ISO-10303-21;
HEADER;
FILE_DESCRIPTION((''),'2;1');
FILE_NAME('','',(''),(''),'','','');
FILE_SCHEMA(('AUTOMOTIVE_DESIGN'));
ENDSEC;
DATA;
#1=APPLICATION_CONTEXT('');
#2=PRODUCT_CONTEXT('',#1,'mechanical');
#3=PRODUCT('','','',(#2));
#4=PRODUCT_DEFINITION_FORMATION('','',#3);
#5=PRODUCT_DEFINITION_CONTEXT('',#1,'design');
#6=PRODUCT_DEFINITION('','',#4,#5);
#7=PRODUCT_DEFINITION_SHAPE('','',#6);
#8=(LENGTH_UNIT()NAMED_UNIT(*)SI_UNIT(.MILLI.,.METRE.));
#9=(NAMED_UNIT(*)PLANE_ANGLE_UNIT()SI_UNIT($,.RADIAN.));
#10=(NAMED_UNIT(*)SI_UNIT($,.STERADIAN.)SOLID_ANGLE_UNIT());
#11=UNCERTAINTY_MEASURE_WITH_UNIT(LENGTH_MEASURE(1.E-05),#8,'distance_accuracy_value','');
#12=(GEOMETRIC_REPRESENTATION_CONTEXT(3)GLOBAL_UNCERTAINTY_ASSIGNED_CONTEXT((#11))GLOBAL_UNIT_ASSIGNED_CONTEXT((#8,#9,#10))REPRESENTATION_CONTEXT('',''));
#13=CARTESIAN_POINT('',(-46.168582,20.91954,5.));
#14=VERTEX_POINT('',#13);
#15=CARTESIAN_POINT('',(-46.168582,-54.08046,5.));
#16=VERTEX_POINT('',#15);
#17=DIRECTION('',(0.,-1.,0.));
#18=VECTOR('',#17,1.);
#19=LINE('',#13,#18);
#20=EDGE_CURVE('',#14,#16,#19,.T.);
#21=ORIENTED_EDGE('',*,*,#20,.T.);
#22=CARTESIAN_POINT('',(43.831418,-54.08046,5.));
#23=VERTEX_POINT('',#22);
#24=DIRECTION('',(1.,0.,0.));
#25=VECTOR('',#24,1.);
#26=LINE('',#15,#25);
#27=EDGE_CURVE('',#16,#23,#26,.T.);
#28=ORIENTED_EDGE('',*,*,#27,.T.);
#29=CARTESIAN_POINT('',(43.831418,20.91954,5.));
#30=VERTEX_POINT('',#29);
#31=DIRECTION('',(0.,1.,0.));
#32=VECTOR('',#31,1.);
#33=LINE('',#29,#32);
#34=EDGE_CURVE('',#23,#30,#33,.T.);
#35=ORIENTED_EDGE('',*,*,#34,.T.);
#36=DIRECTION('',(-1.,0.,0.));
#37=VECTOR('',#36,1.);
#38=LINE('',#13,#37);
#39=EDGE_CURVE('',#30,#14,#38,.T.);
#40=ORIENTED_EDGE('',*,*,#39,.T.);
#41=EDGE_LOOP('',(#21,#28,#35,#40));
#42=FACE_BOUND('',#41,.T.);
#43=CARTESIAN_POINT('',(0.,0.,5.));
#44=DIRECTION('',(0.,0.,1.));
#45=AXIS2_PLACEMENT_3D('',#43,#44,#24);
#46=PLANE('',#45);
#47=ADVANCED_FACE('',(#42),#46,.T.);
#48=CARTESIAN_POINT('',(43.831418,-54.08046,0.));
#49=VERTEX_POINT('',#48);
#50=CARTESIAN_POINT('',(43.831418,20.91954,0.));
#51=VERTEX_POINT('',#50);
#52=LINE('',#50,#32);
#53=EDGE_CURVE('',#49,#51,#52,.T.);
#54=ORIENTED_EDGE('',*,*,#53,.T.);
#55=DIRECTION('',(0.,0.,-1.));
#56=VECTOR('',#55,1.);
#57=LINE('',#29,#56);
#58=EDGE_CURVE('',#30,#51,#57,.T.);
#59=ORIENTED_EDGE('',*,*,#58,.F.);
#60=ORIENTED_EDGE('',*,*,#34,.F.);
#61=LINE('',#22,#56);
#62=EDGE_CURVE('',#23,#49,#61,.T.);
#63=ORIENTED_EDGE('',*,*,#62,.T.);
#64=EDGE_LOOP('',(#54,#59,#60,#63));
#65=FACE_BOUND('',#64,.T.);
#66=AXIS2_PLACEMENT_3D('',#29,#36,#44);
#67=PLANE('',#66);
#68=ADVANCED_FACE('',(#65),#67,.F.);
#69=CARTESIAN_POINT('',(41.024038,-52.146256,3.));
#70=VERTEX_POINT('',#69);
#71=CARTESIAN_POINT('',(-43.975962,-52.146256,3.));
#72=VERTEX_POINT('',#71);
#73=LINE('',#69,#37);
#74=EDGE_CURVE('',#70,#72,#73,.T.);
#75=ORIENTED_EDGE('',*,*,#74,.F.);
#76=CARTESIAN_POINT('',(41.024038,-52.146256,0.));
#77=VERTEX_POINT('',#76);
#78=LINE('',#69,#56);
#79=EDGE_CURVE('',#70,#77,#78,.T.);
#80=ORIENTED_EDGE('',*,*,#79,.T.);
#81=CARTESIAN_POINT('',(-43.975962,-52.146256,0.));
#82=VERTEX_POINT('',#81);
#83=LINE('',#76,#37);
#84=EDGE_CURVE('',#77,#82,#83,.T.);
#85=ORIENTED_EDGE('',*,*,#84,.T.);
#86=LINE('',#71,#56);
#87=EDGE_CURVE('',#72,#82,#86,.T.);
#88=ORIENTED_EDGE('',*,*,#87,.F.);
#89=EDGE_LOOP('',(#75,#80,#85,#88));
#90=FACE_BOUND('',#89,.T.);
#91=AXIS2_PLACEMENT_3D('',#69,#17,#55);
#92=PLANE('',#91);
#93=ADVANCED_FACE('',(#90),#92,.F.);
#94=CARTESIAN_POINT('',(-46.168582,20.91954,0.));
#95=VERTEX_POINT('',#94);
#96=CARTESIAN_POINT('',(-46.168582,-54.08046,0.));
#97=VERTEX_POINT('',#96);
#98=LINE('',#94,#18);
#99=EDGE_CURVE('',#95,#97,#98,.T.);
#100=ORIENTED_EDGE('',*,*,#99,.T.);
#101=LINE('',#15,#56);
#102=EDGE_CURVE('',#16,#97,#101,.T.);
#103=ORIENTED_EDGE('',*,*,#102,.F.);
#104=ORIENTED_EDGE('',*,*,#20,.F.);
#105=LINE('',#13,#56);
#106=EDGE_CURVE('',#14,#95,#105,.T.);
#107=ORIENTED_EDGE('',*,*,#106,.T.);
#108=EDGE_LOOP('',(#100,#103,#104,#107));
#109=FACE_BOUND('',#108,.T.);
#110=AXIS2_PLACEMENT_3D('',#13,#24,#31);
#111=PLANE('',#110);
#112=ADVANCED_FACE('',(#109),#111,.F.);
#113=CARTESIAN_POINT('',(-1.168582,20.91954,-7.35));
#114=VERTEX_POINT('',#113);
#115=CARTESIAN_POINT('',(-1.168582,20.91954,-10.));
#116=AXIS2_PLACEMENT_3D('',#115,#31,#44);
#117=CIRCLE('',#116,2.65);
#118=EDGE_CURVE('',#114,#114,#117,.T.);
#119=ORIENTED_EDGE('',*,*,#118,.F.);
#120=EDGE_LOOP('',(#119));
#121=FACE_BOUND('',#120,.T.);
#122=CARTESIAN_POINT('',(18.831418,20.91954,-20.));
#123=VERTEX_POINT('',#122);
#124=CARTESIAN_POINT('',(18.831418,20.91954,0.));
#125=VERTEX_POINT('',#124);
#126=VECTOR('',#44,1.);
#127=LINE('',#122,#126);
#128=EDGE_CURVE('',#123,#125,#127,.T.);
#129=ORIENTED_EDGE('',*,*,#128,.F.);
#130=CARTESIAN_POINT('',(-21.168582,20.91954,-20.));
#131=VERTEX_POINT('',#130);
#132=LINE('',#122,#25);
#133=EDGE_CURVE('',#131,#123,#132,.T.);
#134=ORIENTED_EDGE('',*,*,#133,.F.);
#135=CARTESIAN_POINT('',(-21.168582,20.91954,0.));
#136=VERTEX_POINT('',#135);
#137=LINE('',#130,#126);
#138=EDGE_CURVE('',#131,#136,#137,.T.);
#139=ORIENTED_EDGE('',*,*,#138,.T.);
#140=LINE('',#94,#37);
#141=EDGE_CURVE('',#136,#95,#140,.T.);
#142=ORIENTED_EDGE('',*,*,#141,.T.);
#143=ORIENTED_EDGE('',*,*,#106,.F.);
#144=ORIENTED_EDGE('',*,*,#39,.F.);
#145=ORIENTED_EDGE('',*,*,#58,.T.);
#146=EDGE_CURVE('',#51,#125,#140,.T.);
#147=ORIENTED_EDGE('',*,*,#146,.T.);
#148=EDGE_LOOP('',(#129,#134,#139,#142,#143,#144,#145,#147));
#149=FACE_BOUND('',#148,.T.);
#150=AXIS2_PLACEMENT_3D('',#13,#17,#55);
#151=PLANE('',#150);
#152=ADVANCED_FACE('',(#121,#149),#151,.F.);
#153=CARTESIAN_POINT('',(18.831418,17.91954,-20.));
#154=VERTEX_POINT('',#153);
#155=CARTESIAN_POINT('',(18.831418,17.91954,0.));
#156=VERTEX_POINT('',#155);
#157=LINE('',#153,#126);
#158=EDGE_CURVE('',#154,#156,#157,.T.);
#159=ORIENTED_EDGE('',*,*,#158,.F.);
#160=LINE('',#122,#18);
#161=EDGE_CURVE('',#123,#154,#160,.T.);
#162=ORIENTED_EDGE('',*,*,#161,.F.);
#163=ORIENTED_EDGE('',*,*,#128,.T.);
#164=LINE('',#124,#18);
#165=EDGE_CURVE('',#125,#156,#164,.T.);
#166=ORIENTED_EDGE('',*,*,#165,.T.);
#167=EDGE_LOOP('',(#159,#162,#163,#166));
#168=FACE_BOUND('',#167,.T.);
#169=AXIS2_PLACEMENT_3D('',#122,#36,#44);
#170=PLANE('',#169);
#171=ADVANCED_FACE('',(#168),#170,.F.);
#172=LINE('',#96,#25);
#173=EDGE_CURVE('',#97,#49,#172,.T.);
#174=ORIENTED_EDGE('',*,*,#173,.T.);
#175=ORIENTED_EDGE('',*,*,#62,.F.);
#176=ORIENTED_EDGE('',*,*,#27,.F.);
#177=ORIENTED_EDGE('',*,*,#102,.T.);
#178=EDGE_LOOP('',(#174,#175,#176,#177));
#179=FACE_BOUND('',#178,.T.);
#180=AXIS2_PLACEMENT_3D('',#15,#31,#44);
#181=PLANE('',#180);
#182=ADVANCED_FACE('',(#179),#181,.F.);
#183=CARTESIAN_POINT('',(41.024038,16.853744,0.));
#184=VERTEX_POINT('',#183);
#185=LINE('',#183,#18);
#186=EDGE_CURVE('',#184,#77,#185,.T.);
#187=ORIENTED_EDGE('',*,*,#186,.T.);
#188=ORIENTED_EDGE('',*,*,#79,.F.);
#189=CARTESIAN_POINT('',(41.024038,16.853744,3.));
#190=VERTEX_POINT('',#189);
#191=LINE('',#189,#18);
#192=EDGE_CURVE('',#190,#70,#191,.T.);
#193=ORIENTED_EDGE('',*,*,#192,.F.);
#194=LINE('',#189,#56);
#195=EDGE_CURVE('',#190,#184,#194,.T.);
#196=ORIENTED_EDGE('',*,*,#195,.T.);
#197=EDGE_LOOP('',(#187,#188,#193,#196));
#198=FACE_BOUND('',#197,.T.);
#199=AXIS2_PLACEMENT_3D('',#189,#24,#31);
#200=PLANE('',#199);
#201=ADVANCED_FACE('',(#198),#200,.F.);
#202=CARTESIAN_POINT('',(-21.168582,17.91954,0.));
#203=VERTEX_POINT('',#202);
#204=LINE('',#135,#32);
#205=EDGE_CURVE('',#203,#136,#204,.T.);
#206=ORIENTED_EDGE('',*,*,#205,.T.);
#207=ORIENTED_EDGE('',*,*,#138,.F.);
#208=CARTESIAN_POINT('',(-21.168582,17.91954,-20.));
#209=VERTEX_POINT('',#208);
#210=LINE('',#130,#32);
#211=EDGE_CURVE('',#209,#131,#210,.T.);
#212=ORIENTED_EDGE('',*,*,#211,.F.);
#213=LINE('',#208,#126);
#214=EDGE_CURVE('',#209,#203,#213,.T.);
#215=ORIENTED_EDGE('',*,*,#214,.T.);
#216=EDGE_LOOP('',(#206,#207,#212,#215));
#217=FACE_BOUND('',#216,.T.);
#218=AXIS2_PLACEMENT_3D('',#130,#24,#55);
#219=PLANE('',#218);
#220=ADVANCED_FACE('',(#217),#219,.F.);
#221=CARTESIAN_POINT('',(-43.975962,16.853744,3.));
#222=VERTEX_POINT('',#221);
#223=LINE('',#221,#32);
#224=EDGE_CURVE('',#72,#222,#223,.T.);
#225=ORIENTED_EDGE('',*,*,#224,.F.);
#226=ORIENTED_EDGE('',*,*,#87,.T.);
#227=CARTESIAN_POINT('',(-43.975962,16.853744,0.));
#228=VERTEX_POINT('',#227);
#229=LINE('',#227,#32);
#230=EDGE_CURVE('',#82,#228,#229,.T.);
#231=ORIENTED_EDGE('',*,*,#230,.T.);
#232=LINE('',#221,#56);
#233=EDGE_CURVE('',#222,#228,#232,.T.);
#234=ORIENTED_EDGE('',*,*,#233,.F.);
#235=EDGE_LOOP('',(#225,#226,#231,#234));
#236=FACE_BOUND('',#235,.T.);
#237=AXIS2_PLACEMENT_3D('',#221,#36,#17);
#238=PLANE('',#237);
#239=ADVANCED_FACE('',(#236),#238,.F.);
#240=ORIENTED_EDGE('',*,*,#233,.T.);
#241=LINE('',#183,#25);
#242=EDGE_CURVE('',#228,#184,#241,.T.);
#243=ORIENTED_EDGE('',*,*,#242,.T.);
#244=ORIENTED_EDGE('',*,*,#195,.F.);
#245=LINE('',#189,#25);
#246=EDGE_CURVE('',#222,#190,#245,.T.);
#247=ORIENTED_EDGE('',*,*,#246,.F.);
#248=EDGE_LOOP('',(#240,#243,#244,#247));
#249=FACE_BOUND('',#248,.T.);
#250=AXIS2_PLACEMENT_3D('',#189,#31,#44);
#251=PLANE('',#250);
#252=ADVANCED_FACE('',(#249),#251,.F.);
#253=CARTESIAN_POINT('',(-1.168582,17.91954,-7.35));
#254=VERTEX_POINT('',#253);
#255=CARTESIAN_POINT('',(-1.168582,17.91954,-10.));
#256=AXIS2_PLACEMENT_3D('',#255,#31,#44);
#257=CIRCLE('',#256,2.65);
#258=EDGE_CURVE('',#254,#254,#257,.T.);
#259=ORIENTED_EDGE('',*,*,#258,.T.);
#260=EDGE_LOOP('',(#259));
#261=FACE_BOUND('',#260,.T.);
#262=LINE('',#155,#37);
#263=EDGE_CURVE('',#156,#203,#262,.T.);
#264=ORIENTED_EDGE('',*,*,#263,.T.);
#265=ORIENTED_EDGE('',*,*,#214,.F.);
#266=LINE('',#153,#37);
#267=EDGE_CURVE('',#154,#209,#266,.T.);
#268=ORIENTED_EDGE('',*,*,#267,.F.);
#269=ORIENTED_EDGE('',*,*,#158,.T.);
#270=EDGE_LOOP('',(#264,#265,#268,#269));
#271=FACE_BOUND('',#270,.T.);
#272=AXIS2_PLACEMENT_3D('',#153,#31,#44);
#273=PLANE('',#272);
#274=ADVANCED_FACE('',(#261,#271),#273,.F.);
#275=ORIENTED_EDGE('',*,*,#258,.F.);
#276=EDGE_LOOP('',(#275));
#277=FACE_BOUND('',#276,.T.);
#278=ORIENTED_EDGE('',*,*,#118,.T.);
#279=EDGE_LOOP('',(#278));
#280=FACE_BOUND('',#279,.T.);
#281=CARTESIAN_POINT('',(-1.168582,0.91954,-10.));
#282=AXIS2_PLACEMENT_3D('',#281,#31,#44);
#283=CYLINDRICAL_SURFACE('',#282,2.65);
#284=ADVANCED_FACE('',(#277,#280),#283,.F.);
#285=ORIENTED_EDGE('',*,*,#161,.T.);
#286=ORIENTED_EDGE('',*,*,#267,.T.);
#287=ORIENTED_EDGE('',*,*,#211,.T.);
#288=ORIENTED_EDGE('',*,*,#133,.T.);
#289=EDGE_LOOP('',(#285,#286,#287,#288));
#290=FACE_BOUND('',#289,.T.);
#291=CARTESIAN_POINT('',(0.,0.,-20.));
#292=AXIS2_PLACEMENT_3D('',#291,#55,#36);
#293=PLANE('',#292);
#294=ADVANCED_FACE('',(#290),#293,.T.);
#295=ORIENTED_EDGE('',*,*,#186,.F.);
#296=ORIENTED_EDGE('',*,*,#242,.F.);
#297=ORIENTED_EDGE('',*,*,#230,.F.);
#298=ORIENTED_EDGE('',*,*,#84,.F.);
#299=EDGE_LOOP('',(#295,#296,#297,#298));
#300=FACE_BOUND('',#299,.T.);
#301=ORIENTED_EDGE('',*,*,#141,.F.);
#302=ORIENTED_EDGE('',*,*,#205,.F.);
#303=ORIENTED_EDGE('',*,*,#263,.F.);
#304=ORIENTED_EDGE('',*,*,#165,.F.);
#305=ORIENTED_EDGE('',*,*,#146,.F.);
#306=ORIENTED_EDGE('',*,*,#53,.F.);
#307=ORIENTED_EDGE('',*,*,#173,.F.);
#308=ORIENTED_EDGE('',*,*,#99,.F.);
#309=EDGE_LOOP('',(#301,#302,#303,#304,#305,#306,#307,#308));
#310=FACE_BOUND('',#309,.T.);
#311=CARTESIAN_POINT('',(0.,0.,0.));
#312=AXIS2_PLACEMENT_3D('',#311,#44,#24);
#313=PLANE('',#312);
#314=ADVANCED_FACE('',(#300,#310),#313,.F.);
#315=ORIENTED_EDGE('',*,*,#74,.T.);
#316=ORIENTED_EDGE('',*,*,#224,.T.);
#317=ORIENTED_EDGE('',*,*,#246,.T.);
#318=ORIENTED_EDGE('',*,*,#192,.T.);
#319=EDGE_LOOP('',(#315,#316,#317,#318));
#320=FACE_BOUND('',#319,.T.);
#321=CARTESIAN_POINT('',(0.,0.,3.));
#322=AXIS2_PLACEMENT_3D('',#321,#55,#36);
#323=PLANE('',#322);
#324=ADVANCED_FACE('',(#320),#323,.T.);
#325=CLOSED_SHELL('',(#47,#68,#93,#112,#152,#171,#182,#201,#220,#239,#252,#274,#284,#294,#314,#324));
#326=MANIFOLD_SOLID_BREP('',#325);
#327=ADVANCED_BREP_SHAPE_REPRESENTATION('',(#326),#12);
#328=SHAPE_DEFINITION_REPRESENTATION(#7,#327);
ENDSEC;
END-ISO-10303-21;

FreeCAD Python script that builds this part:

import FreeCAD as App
import Part
import Sketcher

V = App.Vector

doc = App.newDocument("Part")
body = doc.addObject("PartDesign::Body", "Body")

sketch1 = body.newObject("Sketcher::SketchObject", "Sketch")
sketch1.AttachmentSupport = (doc.getObject("XY_Plane"), [""])
sketch1.MapMode = "FlatFace"
sketch1.addGeometry([
    Part.LineSegment(V(-46, 21, 0), V(-46, -54, 0)),
    Part.LineSegment(V(-46, -54, 0), V(44, -54, 0)),
    Part.LineSegment(V(44, -54, 0), V(44, 21, 0)),
    Part.LineSegment(V(44, 21, 0), V(-46, 21, 0)),
], False)
sketch1.addConstraint([
    Sketcher.Constraint("Coincident", 0, 2, 1, 1),
    Sketcher.Constraint("Coincident", 1, 2, 2, 1),
    Sketcher.Constraint("Coincident", 2, 2, 3, 1),
    Sketcher.Constraint("Coincident", 3, 2, 0, 1),
    Sketcher.Constraint("Vertical", 0),
    Sketcher.Constraint("Horizontal", 1),
    Sketcher.Constraint("Vertical", 2),
    Sketcher.Constraint("Horizontal", 3),
    Sketcher.Constraint("DistanceX", 1, 1, 1, 2, 90.0),
    Sketcher.Constraint("DistanceY", 0, 2, 0, 1, 75.0),
    Sketcher.Constraint("DistanceY", 0, 2, -1, 1, 54.08046),
    Sketcher.Constraint("DistanceX", 0, 2, -1, 1, 46.168582),
])
pad1 = body.newObject("PartDesign::Pad", "Pad")
pad1.Profile = sketch1
pad1.Length = 5

sketch2 = body.newObject("Sketcher::SketchObject", "Sketch001")
sketch2.AttachmentSupport = (doc.getObject("XY_Plane"), [""])
sketch2.MapMode = "FlatFace"
sketch2.addGeometry([
    Part.LineSegment(V(18.8, 20.9, 0), V(18.8, 17.9, 0)),
    Part.LineSegment(V(18.8, 17.9, 0), V(-21.2, 17.9, 0)),
    Part.LineSegment(V(-21.2, 17.9, 0), V(-21.2, 20.9, 0)),
    Part.LineSegment(V(-21.2, 20.9, 0), V(18.8, 20.9, 0)),
], False)
sketch2.addConstraint([
    Sketcher.Constraint("Coincident", 0, 2, 1, 1),
    Sketcher.Constraint("Coincident", 1, 2, 2, 1),
    Sketcher.Constraint("Coincident", 2, 2, 3, 1),
    Sketcher.Constraint("Coincident", 3, 2, 0, 1),
    Sketcher.Constraint("Vertical", 0),
    Sketcher.Constraint("Horizontal", 1),
    Sketcher.Constraint("Vertical", 2),
    Sketcher.Constraint("Horizontal", 3),
    Sketcher.Constraint("DistanceX", 1, 2, 1, 1, 40.0),
    Sketcher.Constraint("DistanceY", 0, 2, 0, 1, 3.0),
    Sketcher.Constraint("DistanceY", -1, 1, 0, 2, 17.91954),
    Sketcher.Constraint("DistanceX", -1, 1, 0, 2, 18.831418),
])
pad2 = body.newObject("PartDesign::Pad", "Pad001")
pad2.Profile = sketch2
pad2.Length = 20
pad2.Reversed = True

sketch3 = body.newObject("Sketcher::SketchObject", "Sketch002")
sketch3.AttachmentSupport = (doc.getObject("XZ_Plane"), [""])
sketch3.MapMode = "FlatFace"
sketch3.AttachmentOffset = App.Placement(V(0, 0, -20.91954), App.Rotation())
sketch3.addGeometry(Part.Circle(V(-1.2, -10, 0), V(0, 0, 1), 2.6), False)
sketch3.addConstraint([
    Sketcher.Constraint("Diameter", 0, 5.3),
    Sketcher.Constraint("DistanceY", 0, 3, -1, 1, 10.0),
    Sketcher.Constraint("DistanceX", 0, 3, -1, 1, 1.168582),
])
pocket1 = body.newObject("PartDesign::Pocket", "Pocket")
pocket1.Profile = sketch3
pocket1.Length = 20
pocket1.Reversed = True

sketch4 = body.newObject("Sketcher::SketchObject", "Sketch003")
sketch4.AttachmentSupport = (doc.getObject("XY_Plane"), [""])
sketch4.MapMode = "FlatFace"
sketch4.addGeometry([
    Part.LineSegment(V(41, 17, 0), V(41, -52, 0)),
    Part.LineSegment(V(41, -52, 0), V(-44, -52, 0)),
    Part.LineSegment(V(-44, -52, 0), V(-44, 17, 0)),
    Part.LineSegment(V(-44, 17, 0), V(41, 17, 0)),
], False)
sketch4.addConstraint([
    Sketcher.Constraint("Coincident", 0, 2, 1, 1),
    Sketcher.Constraint("Coincident", 1, 2, 2, 1),
    Sketcher.Constraint("Coincident", 2, 2, 3, 1),
    Sketcher.Constraint("Coincident", 3, 2, 0, 1),
    Sketcher.Constraint("Vertical", 0),
    Sketcher.Constraint("Horizontal", 1),
    Sketcher.Constraint("Vertical", 2),
    Sketcher.Constraint("Horizontal", 3),
    Sketcher.Constraint("DistanceX", 1, 2, 1, 1, 85.0),
    Sketcher.Constraint("DistanceY", 0, 2, 0, 1, 69.0),
    Sketcher.Constraint("DistanceX", -1, 1, 0, 2, 41.024038),
    Sketcher.Constraint("DistanceY", 0, 2, -1, 1, 52.146256),
])
pocket2 = body.newObject("PartDesign::Pocket", "Pocket001")
pocket2.Profile = sketch4
pocket2.Length = 3
pocket2.Reversed = True

doc.recompute()
